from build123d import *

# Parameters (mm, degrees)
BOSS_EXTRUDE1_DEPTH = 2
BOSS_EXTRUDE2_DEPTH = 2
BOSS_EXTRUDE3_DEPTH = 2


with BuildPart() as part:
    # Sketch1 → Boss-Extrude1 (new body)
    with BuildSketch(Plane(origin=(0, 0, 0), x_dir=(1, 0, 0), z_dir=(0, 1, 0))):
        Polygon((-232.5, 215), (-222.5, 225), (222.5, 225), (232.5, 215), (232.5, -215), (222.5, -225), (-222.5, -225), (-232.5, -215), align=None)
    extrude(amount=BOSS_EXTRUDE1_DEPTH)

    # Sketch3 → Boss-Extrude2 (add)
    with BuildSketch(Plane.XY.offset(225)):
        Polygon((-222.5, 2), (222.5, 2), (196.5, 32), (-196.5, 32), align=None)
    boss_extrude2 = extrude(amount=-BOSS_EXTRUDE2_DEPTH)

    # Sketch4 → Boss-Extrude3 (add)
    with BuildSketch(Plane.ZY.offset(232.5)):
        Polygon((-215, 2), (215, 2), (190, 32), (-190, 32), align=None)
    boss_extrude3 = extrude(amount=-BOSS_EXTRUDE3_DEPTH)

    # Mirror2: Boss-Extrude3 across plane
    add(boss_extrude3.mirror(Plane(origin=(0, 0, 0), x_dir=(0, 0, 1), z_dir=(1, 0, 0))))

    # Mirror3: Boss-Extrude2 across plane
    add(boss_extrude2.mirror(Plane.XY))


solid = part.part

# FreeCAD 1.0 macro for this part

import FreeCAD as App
import Part
import Sketcher

V = App.Vector
Q = App.Units.Quantity

doc = App.newDocument("Part")
body = doc.addObject("PartDesign::Body", "Body")

sketch1 = doc.addObject("Sketcher::SketchObject", "Sketch")
body.addObject(sketch1)
sketch1.AttachmentSupport = (doc.XZ_Plane, [""])
sketch1.MapMode = "FlatFace"
sketch1.addGeometry([
    Part.LineSegment(V(-222.5, -225, 0), V(-232.5, -215, 0)),
    Part.LineSegment(V(-232.5, -215, 0), V(-232.5, 215, 0)),
    Part.LineSegment(V(-232.5, 215, 0), V(-222.5, 225, 0)),
    Part.LineSegment(V(-222.5, 225, 0), V(222.5, 225, 0)),
    Part.LineSegment(V(222.5, 225, 0), V(232.5, 215, 0)),
    Part.LineSegment(V(232.5, 215, 0), V(232.5, -215, 0)),
    Part.LineSegment(V(232.5, -215, 0), V(222.5, -225, 0)),
    Part.LineSegment(V(222.5, -225, 0), V(-222.5, -225, 0)),
], False)
sketch1.addConstraint([
    Sketcher.Constraint("Coincident", 0, 2, 1, 1),
    Sketcher.Constraint("Coincident", 1, 2, 2, 1),
    Sketcher.Constraint("Coincident", 2, 2, 3, 1),
    Sketcher.Constraint("Coincident", 3, 2, 4, 1),
    Sketcher.Constraint("Coincident", 4, 2, 5, 1),
    Sketcher.Constraint("Coincident", 5, 2, 6, 1),
    Sketcher.Constraint("Coincident", 6, 2, 7, 1),
    Sketcher.Constraint("Coincident", 7, 2, 0, 1),
    Sketcher.Constraint("Vertical", 1),
    Sketcher.Constraint("Horizontal", 3),
    Sketcher.Constraint("Vertical", 5),
    Sketcher.Constraint("Horizontal", 7),
    Sketcher.Constraint("Symmetric", 0, 2, 4, 2, -1, 1),
    Sketcher.Constraint("Symmetric", 2, 2, 6, 2, -1, 1),
    Sketcher.Constraint("Perpendicular", 0, 2),
    Sketcher.Constraint("Perpendicular", 2, 4),
    Sketcher.Constraint("Perpendicular", 4, 6),
    Sketcher.Constraint("Horizontal", 1, 2, 4, 2),
    Sketcher.Constraint("Vertical", 3, 2, 6, 2),
    Sketcher.Constraint("DistanceX", 3, 1, 3, 2, Q("445 mm")),
    Sketcher.Constraint("DistanceY", 1, 1, 1, 2, Q("430 mm")),
    Sketcher.Constraint("DistanceY", -1, 1, 2, 2, Q("225 mm")),
])
pad1 = doc.addObject("PartDesign::Pad", "Pad")
body.addObject(pad1)
pad1.Profile = sketch1
pad1.Length = 2
pad1.Reversed = True

sketch2 = doc.addObject("Sketcher::SketchObject", "Sketch001")
body.addObject(sketch2)
sketch2.AttachmentSupport = (doc.XY_Plane, [""])
sketch2.MapMode = "FlatFace"
sketch2.AttachmentOffset = App.Placement(V(0, 0, 225), App.Rotation())
sketch2.addGeometry([
    Part.LineSegment(V(-222.5, 2, 0), V(222.5, 2, 0)),
    Part.LineSegment(V(222.5, 2, 0), V(196.5, 32, 0)),
    Part.LineSegment(V(196.5, 32, 0), V(-196.5, 32, 0)),
    Part.LineSegment(V(-196.5, 32, 0), V(-222.5, 2, 0)),
], False)
sketch2.addConstraint([
    Sketcher.Constraint("Coincident", 0, 2, 1, 1),
    Sketcher.Constraint("Coincident", 1, 2, 2, 1),
    Sketcher.Constraint("Coincident", 2, 2, 3, 1),
    Sketcher.Constraint("Coincident", 3, 2, 0, 1),
    Sketcher.Constraint("Horizontal", 0),
    Sketcher.Constraint("Horizontal", 2),
    Sketcher.Constraint("Equal", 1, 3),
    Sketcher.Constraint("DistanceX", 0, 1, 0, 2, Q("445 mm")),
    Sketcher.Constraint("DistanceX", 2, 2, 2, 1, Q("393 mm")),
    Sketcher.Constraint("DistanceY", -1, 1, 0, 2, Q("2 mm")),
    Sketcher.Constraint("DistanceY", -1, 1, 1, 2, Q("32 mm")),
    Sketcher.Constraint("DistanceX", -1, 1, 0, 2, Q("222.5 mm")),
])
pad2 = doc.addObject("PartDesign::Pad", "Pad001")
body.addObject(pad2)
pad2.Profile = sketch2
pad2.Length = 2
pad2.Reversed = True

sketch3 = doc.addObject("Sketcher::SketchObject", "Sketch002")
body.addObject(sketch3)
sketch3.AttachmentSupport = (doc.YZ_Plane, [""])
sketch3.MapMode = "FlatFace"
sketch3.AttachmentOffset = App.Placement(V(0, 0, -232.5), App.Rotation())
sketch3.addGeometry([
    Part.LineSegment(V(2, -215, 0), V(2, 215, 0)),
    Part.LineSegment(V(2, 215, 0), V(32, 190, 0)),
    Part.LineSegment(V(32, 190, 0), V(32, -190, 0)),
    Part.LineSegment(V(32, -190, 0), V(2, -215, 0)),
], False)
sketch3.addConstraint([
    Sketcher.Constraint("Coincident", 0, 2, 1, 1),
    Sketcher.Constraint("Coincident", 1, 2, 2, 1),
    Sketcher.Constraint("Coincident", 2, 2, 3, 1),
    Sketcher.Constraint("Coincident", 3, 2, 0, 1),
    Sketcher.Constraint("Vertical", 0),
    Sketcher.Constraint("Vertical", 2),
    Sketcher.Constraint("Equal", 1, 3),
    Sketcher.Constraint("DistanceY", 0, 1, 0, 2, Q("430 mm")),
    Sketcher.Constraint("DistanceY", 2, 2, 2, 1, Q("380 mm")),
    Sketcher.Constraint("DistanceX", -1, 1, 0, 2, Q("2 mm")),
    Sketcher.Constraint("DistanceY", -1, 1, 0, 2, Q("215 mm")),
    Sketcher.Constraint("DistanceX", -1, 1, 1, 2, Q("32 mm")),
])
pad3 = doc.addObject("PartDesign::Pad", "Pad002")
body.addObject(pad3)
pad3.Profile = sketch3
pad3.Length = 2
doc.recompute()

mirrored = doc.addObject("PartDesign::Mirrored", "Mirrored")
body.addObject(mirrored)
mirrored.Originals = [pad3]
mirrored.MirrorPlane = (doc.YZ_Plane, [""])
body.Tip = mirrored
doc.recompute()

mirrored2 = doc.addObject("PartDesign::Mirrored", "Mirrored001")
body.addObject(mirrored2)
mirrored2.Originals = [pad2]
mirrored2.MirrorPlane = (doc.XY_Plane, [""])
body.Tip = mirrored2

doc.recompute()
